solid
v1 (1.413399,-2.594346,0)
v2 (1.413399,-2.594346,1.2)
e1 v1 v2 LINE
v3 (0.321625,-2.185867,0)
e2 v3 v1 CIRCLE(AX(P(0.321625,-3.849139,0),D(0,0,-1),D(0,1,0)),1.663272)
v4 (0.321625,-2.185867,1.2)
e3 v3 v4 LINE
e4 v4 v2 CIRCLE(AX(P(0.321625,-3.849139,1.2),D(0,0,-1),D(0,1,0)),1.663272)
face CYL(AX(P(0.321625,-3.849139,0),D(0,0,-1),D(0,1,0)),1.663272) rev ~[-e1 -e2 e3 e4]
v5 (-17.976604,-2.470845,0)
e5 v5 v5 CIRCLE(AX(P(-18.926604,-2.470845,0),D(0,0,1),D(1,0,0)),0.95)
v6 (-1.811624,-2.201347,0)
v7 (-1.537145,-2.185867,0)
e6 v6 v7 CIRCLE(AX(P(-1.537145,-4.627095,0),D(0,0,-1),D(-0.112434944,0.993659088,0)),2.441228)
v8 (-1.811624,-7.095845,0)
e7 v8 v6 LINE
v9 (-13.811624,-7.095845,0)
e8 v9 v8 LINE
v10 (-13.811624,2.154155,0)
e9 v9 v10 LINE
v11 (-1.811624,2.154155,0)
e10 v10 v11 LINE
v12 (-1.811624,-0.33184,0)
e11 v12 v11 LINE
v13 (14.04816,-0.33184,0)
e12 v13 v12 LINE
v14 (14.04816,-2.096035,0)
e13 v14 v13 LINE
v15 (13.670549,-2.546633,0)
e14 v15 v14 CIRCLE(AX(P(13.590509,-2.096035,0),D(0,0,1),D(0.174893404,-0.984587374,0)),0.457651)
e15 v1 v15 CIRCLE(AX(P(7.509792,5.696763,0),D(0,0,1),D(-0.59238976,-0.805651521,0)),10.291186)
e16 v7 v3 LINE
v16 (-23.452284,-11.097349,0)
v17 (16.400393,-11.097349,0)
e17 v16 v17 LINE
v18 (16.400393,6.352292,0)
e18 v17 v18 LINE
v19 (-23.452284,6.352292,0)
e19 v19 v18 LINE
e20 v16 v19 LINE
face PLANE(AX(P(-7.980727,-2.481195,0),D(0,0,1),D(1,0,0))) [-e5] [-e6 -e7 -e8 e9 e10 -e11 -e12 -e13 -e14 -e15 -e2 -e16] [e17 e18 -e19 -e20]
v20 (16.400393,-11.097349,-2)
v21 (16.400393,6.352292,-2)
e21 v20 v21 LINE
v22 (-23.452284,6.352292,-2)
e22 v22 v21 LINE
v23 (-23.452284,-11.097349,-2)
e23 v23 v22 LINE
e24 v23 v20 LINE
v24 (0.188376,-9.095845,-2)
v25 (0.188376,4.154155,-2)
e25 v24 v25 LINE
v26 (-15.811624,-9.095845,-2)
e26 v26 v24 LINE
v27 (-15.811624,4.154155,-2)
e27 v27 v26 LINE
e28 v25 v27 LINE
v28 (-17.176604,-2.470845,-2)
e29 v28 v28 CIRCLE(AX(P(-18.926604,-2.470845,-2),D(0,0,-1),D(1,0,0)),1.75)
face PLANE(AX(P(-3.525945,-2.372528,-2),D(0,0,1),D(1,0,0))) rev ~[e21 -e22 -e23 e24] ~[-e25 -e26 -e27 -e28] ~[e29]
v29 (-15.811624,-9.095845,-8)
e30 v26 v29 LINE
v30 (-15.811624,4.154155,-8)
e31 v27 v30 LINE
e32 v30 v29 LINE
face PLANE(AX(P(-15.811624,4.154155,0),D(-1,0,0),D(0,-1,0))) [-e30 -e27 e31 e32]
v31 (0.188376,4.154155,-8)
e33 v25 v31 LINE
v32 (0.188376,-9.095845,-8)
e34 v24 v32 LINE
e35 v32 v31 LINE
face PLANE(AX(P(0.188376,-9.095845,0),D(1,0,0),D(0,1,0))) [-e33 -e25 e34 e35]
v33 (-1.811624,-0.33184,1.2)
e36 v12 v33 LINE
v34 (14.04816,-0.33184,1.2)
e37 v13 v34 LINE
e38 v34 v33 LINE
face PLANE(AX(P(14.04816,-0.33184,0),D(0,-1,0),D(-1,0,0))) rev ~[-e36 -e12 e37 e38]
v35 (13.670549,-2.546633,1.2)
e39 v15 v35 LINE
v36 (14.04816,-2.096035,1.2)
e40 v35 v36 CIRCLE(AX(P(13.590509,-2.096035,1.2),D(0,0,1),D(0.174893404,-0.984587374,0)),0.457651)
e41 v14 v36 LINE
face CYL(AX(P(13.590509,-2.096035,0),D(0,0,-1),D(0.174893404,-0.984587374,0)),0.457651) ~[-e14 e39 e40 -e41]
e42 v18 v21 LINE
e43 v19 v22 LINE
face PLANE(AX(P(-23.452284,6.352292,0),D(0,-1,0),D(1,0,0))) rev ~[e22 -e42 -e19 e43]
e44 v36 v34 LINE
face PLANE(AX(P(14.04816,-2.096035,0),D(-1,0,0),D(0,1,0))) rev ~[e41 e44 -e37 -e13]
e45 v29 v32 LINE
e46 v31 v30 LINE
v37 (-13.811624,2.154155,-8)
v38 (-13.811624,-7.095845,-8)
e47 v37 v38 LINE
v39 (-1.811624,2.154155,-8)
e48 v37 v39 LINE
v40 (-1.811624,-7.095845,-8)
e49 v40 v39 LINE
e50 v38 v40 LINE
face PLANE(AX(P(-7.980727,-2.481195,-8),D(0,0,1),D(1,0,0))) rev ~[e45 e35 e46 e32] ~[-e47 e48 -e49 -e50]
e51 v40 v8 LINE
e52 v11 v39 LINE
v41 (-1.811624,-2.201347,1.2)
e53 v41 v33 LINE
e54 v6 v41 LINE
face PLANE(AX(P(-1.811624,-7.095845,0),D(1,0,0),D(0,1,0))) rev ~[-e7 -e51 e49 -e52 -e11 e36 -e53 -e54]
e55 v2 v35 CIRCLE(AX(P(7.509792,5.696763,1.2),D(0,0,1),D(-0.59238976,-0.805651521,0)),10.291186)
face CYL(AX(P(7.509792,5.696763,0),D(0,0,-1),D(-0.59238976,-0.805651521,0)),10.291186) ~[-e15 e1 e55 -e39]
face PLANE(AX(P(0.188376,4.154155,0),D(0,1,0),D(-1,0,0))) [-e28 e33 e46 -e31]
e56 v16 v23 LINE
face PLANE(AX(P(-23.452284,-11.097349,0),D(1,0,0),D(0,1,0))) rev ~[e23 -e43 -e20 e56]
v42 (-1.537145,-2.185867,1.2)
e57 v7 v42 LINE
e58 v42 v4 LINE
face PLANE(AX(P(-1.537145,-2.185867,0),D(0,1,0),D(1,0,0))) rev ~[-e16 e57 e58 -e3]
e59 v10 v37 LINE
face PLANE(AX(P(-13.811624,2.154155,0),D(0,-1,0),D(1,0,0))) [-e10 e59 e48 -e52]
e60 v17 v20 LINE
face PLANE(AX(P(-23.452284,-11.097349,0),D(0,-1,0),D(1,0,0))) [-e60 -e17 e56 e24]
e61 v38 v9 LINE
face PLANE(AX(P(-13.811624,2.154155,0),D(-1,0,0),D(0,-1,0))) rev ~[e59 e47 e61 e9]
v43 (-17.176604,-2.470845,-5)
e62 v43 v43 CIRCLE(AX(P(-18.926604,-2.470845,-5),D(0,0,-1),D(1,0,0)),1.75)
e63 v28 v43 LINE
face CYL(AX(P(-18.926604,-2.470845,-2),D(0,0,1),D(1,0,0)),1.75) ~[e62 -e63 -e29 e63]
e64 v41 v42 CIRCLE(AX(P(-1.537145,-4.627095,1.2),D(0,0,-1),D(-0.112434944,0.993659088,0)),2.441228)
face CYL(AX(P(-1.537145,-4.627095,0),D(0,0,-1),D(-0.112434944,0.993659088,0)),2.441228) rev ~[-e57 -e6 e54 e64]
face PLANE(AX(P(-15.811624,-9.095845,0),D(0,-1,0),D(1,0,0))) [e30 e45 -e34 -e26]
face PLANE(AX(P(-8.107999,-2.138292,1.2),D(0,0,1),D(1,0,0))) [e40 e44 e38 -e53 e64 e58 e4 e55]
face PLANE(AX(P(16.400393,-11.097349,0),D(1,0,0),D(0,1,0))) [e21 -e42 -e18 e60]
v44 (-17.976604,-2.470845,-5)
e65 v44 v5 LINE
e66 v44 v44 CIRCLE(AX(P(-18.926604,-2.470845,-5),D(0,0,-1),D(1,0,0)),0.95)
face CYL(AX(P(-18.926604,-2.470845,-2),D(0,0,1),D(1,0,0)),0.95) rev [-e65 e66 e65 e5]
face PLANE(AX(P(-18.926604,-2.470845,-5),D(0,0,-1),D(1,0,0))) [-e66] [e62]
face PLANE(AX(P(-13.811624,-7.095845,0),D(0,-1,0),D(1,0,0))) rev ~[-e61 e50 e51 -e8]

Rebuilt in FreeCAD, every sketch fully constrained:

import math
import FreeCAD as App
import Part
import Sketcher

V = App.Vector
Q = App.Units.Quantity

doc = App.newDocument("Part")
body = doc.addObject("PartDesign::Body", "Body")

# Sketch on XY plane
sketch1 = body.newObject("Sketcher::SketchObject", "Sketch")
sketch1.AttachmentSupport = (doc.getObject("XY_Plane"), [""])
sketch1.MapMode = "FlatFace"
sketch1.addGeometry([
    Part.LineSegment(V(-23.452284, 6.352292, 0), V(-23.452284, -11.097349, 0)),
    Part.LineSegment(V(-23.452284, -11.097349, 0), V(16.400393, -11.097349, 0)),
    Part.LineSegment(V(16.400393, -11.097349, 0), V(16.400393, 6.352292, 0)),
    Part.LineSegment(V(16.400393, 6.352292, 0), V(-23.452284, 6.352292, 0)),
], False)
sketch1.addConstraint([
    Sketcher.Constraint("Coincident", 0, 2, 1, 1),
    Sketcher.Constraint("Coincident", 1, 2, 2, 1),
    Sketcher.Constraint("Coincident", 2, 2, 3, 1),
    Sketcher.Constraint("Coincident", 3, 2, 0, 1),
    Sketcher.Constraint("Vertical", 0),
    Sketcher.Constraint("Horizontal", 1),
    Sketcher.Constraint("Vertical", 2),
    Sketcher.Constraint("Horizontal", 3),
    Sketcher.Constraint("DistanceY", 0, 2, 0, 1, Q("17.449642 mm")),
    Sketcher.Constraint("DistanceX", 1, 1, 1, 2, Q("39.852677 mm")),
    Sketcher.Constraint("DistanceY", 0, 2, -1, 1, Q("11.097349 mm")),
    Sketcher.Constraint("DistanceX", 0, 2, -1, 1, Q("23.452284 mm")),
])
pad1 = body.newObject("PartDesign::Pad", "Pad")
pad1.Profile = sketch1
pad1.Length = 2
pad1.Reversed = True

# Sketch on XY plane
sketch2 = body.newObject("Sketcher::SketchObject", "Sketch001")
sketch2.AttachmentSupport = (doc.getObject("XY_Plane"), [""])
sketch2.MapMode = "FlatFace"
sketch2.addGeometry([
    Part.LineSegment(V(0.188376, 4.154155, 0), V(-15.811624, 4.154155, 0)),
    Part.LineSegment(V(-15.811624, 4.154155, 0), V(-15.811624, -9.095845, 0)),
    Part.LineSegment(V(-15.811624, -9.095845, 0), V(0.188376, -9.095845, 0)),
    Part.LineSegment(V(0.188376, -9.095845, 0), V(0.188376, 4.154155, 0)),
], False)
sketch2.addConstraint([
    Sketcher.Constraint("Coincident", 0, 2, 1, 1),
    Sketcher.Constraint("Coincident", 1, 2, 2, 1),
    Sketcher.Constraint("Coincident", 2, 2, 3, 1),
    Sketcher.Constraint("Coincident", 3, 2, 0, 1),
    Sketcher.Constraint("Horizontal", 0),
    Sketcher.Constraint("Vertical", 1),
    Sketcher.Constraint("Horizontal", 2),
    Sketcher.Constraint("Vertical", 3),
    Sketcher.Constraint("DistanceX", 0, 2, 0, 1, Q("16 mm")),
    Sketcher.Constraint("DistanceY", 1, 2, 1, 1, Q("13.25 mm")),
    Sketcher.Constraint("DistanceX", 0, 2, -1, 1, Q("15.811624 mm")),
    Sketcher.Constraint("DistanceY", -1, 1, 0, 2, Q("4.154155 mm")),
])
pad2 = body.newObject("PartDesign::Pad", "Pad001")
pad2.Profile = sketch2
pad2.Length = 8
pad2.Reversed = True

# Sketch on XY plane
sketch3 = body.newObject("Sketcher::SketchObject", "Sketch002")
sketch3.AttachmentSupport = (doc.getObject("XY_Plane"), [""])
sketch3.MapMode = "FlatFace"
sketch3.addGeometry([
    Part.ArcOfCircle(Part.Circle(V(-1.537145, -4.627095, 0), V(0, 0, 1), 2.441228), math.radians(96.455699), math.radians(123.959624)),  # 0
    Part.ArcOfCircle(Part.Circle(V(-1.537145, -4.627095, 0), V(0, 0, 1), 2.441228), math.radians(90), math.radians(96.455699)),  # 1
    Part.LineSegment(V(-1.537145, -2.185867, 0), V(0.321625, -2.185867, 0)),  # 2
    Part.ArcOfCircle(Part.Circle(V(0.321625, -3.849139, 0), V(0, 0, 1), 1.663272), math.radians(48.974048), math.radians(90)),  # 3
    Part.ArcOfCircle(Part.Circle(V(7.509792, 5.696763, 0), V(0, 0, 1), 10.291186), math.radians(-126.326777), math.radians(-53.227153)),  # 4
    Part.ArcOfCircle(Part.Circle(V(13.590509, -2.096035, 0), V(0, 0, 1), 0.457651), math.radians(-79.927545), math.radians(0)),  # 5
    Part.LineSegment(V(14.04816, -2.096035, 0), V(14.04816, -0.33184, 0)),  # 6
    Part.LineSegment(V(14.04816, -0.33184, 0), V(-13.811624, -0.33184, 0)),  # 7
    Part.LineSegment(V(-13.811624, -0.33184, 0), V(-13.811624, -4.241208, 0)),  # 8
    Part.LineSegment(V(-13.811624, -4.241208, 0), V(-4.80149, -4.241208, 0)),  # 9
    Part.ArcOfCircle(Part.Circle(V(-4.80149, -3.406743, 0), V(0, 0, 1), 0.834465), math.radians(-90), math.radians(-28.193405)),  # 10
    Part.LineSegment(V(-4.066028, -3.800985, 0), V(-2.900836, -2.602264, 0)),  # 11
], False)
sketch3.addConstraint([
    Sketcher.Constraint("Tangent", 0, 1, 1, 2),
    Sketcher.Constraint("Tangent", 1, 1, 2, 1),
    Sketcher.Constraint("Tangent", 2, 2, 3, 2),
    Sketcher.Constraint("Coincident", 3, 1, 4, 1),
    Sketcher.Constraint("Coincident", 4, 2, 5, 1),
    Sketcher.Constraint("Tangent", 5, 2, 6, 1),
    Sketcher.Constraint("Coincident", 6, 2, 7, 1),
    Sketcher.Constraint("Coincident", 7, 2, 8, 1),
    Sketcher.Constraint("Coincident", 8, 2, 9, 1),
    Sketcher.Constraint("Tangent", 9, 2, 10, 1),
    Sketcher.Constraint("Coincident", 10, 2, 11, 1),
    Sketcher.Constraint("Coincident", 11, 2, 0, 2),
    Sketcher.Constraint("Horizontal", 2),
    Sketcher.Constraint("Vertical", 6),
    Sketcher.Constraint("Horizontal", 7),
    Sketcher.Constraint("Vertical", 8),
    Sketcher.Constraint("Horizontal", 9),
    Sketcher.Constraint("Equal", 0, 1),
    Sketcher.Constraint("DistanceX", 7, 2, 0, 1, Q("12 mm")),
    Sketcher.Constraint("Radius", 0, Q("2.441228 mm")),
    Sketcher.Constraint("Radius", 5, Q("0.457651 mm")),
    Sketcher.Constraint("Radius", 3, Q("1.663272 mm")),
    Sketcher.Constraint("Radius", 4, Q("10.291186 mm")),
    Sketcher.Constraint("Radius", 10, Q("0.834465 mm")),
    Sketcher.Constraint("DistanceX", 10, 3, 5, 3, Q("18.391999 mm")),
    Sketcher.Constraint("DistanceY", 3, 1, 0, 1, Q("0.393 mm")),
    Sketcher.Constraint("DistanceX", 2, 1, 2, 2, Q("1.85877 mm")),
    Sketcher.Constraint("DistanceX", -1, 1, 3, 1, Q("1.413399 mm")),
    Sketcher.Constraint("DistanceY", 5, 3, 4, 3, Q("7.792799 mm")),
    Sketcher.Constraint("DistanceX", 7, 2, 7, 1, Q("27.859784 mm")),
    Sketcher.Constraint("DistanceY", 6, 1, 6, 2, Q("1.764195 mm")),
    Sketcher.Constraint("DistanceY", 8, 2, 8, 1, Q("3.909368 mm")),
    Sketcher.Constraint("DistanceY", 3, 3, -1, 1, Q("3.849139 mm")),
    Sketcher.Constraint("DistanceX", -1, 1, 4, 3, Q("7.509792 mm")),
    Sketcher.Constraint("DistanceX", -1, 1, 5, 3, Q("13.590509 mm")),
    Sketcher.Constraint("DistanceY", 0, 3, 10, 2, Q("0.82611 mm")),
    Sketcher.Constraint("DistanceX", 11, 2, 0, 1, Q("1.089212 mm")),
])
pad3 = body.newObject("PartDesign::Pad", "Pad002")
pad3.Profile = sketch3
pad3.Length = 1.2

# Sketch on XY plane
sketch4 = body.newObject("Sketcher::SketchObject", "Sketch003")
sketch4.AttachmentSupport = (doc.getObject("XY_Plane"), [""])
sketch4.MapMode = "FlatFace"
sketch4.addGeometry([
    Part.LineSegment(V(-13.811624, 2.154155, 0), V(-13.811624, -7.095845, 0)),
    Part.LineSegment(V(-13.811624, -7.095845, 0), V(-1.811624, -7.095845, 0)),
    Part.LineSegment(V(-1.811624, -7.095845, 0), V(-1.811624, 2.154155, 0)),
    Part.LineSegment(V(-1.811624, 2.154155, 0), V(-13.811624, 2.154155, 0)),
], False)
sketch4.addConstraint([
    Sketcher.Constraint("Coincident", 0, 2, 1, 1),
    Sketcher.Constraint("Coincident", 1, 2, 2, 1),
    Sketcher.Constraint("Coincident", 2, 2, 3, 1),
    Sketcher.Constraint("Coincident", 3, 2, 0, 1),
    Sketcher.Constraint("Vertical", 0),
    Sketcher.Constraint("Horizontal", 1),
    Sketcher.Constraint("Vertical", 2),
    Sketcher.Constraint("Horizontal", 3),
    Sketcher.Constraint("DistanceX", 1, 1, 1, 2, Q("12 mm")),
    Sketcher.Constraint("DistanceY", 0, 2, 0, 1, Q("9.25 mm")),
    Sketcher.Constraint("DistanceX", 0, 2, -1, 1, Q("13.811624 mm")),
    Sketcher.Constraint("DistanceY", 0, 2, -1, 1, Q("7.095845 mm")),
])
pocket1 = body.newObject("PartDesign::Pocket", "Pocket")
pocket1.Profile = sketch4
pocket1.Length = 25
pocket1.Midplane = True

# Sketch on XY plane
sketch5 = body.newObject("Sketcher::SketchObject", "Sketch004")
sketch5.AttachmentSupport = (doc.getObject("XY_Plane"), [""])
sketch5.MapMode = "FlatFace"
sketch5.addGeometry(Part.Circle(V(-18.926604, -2.470845, 0), V(0, 0, 1), 0.95), False)
sketch5.addConstraint([
    Sketcher.Constraint("Diameter", 0, Q("1.9 mm")),
    Sketcher.Constraint("DistanceX", 0, 3, -1, 1, Q("18.926604 mm")),
    Sketcher.Constraint("DistanceY", 0, 3, -1, 1, Q("2.470845 mm")),
])
pocket2 = body.newObject("PartDesign::Pocket", "Pocket001")
pocket2.Profile = sketch5
pocket2.Type = "ThroughAll"

# Sketch on XY plane
sketch6 = body.newObject("Sketcher::SketchObject", "Sketch005")
sketch6.AttachmentSupport = (doc.getObject("XY_Plane"), [""])
sketch6.MapMode = "FlatFace"
sketch6.AttachmentOffset = App.Placement(V(0, 0, -2), App.Rotation())
sketch6.addGeometry([
    Part.Circle(V(-18.926604, -2.470845, 0), V(0, 0, 1), 1.75),
    Part.Circle(V(-18.926604, -2.470845, 0), V(0, 0, 1), 0.95),
], False)
sketch6.addConstraint([
    Sketcher.Constraint("Coincident", 1, 3, 0, 3),
    Sketcher.Constraint("Diameter", 0, Q("3.5 mm")),
    Sketcher.Constraint("Diameter", 1, Q("1.9 mm")),
    Sketcher.Constraint("DistanceX", 0, 3, -1, 1, Q("18.926604 mm")),
    Sketcher.Constraint("DistanceY", 0, 3, -1, 1, Q("2.470845 mm")),
])
pad4 = body.newObject("PartDesign::Pad", "Pad003")
pad4.Profile = sketch6
pad4.Length = 3
pad4.Reversed = True

doc.recompute()
